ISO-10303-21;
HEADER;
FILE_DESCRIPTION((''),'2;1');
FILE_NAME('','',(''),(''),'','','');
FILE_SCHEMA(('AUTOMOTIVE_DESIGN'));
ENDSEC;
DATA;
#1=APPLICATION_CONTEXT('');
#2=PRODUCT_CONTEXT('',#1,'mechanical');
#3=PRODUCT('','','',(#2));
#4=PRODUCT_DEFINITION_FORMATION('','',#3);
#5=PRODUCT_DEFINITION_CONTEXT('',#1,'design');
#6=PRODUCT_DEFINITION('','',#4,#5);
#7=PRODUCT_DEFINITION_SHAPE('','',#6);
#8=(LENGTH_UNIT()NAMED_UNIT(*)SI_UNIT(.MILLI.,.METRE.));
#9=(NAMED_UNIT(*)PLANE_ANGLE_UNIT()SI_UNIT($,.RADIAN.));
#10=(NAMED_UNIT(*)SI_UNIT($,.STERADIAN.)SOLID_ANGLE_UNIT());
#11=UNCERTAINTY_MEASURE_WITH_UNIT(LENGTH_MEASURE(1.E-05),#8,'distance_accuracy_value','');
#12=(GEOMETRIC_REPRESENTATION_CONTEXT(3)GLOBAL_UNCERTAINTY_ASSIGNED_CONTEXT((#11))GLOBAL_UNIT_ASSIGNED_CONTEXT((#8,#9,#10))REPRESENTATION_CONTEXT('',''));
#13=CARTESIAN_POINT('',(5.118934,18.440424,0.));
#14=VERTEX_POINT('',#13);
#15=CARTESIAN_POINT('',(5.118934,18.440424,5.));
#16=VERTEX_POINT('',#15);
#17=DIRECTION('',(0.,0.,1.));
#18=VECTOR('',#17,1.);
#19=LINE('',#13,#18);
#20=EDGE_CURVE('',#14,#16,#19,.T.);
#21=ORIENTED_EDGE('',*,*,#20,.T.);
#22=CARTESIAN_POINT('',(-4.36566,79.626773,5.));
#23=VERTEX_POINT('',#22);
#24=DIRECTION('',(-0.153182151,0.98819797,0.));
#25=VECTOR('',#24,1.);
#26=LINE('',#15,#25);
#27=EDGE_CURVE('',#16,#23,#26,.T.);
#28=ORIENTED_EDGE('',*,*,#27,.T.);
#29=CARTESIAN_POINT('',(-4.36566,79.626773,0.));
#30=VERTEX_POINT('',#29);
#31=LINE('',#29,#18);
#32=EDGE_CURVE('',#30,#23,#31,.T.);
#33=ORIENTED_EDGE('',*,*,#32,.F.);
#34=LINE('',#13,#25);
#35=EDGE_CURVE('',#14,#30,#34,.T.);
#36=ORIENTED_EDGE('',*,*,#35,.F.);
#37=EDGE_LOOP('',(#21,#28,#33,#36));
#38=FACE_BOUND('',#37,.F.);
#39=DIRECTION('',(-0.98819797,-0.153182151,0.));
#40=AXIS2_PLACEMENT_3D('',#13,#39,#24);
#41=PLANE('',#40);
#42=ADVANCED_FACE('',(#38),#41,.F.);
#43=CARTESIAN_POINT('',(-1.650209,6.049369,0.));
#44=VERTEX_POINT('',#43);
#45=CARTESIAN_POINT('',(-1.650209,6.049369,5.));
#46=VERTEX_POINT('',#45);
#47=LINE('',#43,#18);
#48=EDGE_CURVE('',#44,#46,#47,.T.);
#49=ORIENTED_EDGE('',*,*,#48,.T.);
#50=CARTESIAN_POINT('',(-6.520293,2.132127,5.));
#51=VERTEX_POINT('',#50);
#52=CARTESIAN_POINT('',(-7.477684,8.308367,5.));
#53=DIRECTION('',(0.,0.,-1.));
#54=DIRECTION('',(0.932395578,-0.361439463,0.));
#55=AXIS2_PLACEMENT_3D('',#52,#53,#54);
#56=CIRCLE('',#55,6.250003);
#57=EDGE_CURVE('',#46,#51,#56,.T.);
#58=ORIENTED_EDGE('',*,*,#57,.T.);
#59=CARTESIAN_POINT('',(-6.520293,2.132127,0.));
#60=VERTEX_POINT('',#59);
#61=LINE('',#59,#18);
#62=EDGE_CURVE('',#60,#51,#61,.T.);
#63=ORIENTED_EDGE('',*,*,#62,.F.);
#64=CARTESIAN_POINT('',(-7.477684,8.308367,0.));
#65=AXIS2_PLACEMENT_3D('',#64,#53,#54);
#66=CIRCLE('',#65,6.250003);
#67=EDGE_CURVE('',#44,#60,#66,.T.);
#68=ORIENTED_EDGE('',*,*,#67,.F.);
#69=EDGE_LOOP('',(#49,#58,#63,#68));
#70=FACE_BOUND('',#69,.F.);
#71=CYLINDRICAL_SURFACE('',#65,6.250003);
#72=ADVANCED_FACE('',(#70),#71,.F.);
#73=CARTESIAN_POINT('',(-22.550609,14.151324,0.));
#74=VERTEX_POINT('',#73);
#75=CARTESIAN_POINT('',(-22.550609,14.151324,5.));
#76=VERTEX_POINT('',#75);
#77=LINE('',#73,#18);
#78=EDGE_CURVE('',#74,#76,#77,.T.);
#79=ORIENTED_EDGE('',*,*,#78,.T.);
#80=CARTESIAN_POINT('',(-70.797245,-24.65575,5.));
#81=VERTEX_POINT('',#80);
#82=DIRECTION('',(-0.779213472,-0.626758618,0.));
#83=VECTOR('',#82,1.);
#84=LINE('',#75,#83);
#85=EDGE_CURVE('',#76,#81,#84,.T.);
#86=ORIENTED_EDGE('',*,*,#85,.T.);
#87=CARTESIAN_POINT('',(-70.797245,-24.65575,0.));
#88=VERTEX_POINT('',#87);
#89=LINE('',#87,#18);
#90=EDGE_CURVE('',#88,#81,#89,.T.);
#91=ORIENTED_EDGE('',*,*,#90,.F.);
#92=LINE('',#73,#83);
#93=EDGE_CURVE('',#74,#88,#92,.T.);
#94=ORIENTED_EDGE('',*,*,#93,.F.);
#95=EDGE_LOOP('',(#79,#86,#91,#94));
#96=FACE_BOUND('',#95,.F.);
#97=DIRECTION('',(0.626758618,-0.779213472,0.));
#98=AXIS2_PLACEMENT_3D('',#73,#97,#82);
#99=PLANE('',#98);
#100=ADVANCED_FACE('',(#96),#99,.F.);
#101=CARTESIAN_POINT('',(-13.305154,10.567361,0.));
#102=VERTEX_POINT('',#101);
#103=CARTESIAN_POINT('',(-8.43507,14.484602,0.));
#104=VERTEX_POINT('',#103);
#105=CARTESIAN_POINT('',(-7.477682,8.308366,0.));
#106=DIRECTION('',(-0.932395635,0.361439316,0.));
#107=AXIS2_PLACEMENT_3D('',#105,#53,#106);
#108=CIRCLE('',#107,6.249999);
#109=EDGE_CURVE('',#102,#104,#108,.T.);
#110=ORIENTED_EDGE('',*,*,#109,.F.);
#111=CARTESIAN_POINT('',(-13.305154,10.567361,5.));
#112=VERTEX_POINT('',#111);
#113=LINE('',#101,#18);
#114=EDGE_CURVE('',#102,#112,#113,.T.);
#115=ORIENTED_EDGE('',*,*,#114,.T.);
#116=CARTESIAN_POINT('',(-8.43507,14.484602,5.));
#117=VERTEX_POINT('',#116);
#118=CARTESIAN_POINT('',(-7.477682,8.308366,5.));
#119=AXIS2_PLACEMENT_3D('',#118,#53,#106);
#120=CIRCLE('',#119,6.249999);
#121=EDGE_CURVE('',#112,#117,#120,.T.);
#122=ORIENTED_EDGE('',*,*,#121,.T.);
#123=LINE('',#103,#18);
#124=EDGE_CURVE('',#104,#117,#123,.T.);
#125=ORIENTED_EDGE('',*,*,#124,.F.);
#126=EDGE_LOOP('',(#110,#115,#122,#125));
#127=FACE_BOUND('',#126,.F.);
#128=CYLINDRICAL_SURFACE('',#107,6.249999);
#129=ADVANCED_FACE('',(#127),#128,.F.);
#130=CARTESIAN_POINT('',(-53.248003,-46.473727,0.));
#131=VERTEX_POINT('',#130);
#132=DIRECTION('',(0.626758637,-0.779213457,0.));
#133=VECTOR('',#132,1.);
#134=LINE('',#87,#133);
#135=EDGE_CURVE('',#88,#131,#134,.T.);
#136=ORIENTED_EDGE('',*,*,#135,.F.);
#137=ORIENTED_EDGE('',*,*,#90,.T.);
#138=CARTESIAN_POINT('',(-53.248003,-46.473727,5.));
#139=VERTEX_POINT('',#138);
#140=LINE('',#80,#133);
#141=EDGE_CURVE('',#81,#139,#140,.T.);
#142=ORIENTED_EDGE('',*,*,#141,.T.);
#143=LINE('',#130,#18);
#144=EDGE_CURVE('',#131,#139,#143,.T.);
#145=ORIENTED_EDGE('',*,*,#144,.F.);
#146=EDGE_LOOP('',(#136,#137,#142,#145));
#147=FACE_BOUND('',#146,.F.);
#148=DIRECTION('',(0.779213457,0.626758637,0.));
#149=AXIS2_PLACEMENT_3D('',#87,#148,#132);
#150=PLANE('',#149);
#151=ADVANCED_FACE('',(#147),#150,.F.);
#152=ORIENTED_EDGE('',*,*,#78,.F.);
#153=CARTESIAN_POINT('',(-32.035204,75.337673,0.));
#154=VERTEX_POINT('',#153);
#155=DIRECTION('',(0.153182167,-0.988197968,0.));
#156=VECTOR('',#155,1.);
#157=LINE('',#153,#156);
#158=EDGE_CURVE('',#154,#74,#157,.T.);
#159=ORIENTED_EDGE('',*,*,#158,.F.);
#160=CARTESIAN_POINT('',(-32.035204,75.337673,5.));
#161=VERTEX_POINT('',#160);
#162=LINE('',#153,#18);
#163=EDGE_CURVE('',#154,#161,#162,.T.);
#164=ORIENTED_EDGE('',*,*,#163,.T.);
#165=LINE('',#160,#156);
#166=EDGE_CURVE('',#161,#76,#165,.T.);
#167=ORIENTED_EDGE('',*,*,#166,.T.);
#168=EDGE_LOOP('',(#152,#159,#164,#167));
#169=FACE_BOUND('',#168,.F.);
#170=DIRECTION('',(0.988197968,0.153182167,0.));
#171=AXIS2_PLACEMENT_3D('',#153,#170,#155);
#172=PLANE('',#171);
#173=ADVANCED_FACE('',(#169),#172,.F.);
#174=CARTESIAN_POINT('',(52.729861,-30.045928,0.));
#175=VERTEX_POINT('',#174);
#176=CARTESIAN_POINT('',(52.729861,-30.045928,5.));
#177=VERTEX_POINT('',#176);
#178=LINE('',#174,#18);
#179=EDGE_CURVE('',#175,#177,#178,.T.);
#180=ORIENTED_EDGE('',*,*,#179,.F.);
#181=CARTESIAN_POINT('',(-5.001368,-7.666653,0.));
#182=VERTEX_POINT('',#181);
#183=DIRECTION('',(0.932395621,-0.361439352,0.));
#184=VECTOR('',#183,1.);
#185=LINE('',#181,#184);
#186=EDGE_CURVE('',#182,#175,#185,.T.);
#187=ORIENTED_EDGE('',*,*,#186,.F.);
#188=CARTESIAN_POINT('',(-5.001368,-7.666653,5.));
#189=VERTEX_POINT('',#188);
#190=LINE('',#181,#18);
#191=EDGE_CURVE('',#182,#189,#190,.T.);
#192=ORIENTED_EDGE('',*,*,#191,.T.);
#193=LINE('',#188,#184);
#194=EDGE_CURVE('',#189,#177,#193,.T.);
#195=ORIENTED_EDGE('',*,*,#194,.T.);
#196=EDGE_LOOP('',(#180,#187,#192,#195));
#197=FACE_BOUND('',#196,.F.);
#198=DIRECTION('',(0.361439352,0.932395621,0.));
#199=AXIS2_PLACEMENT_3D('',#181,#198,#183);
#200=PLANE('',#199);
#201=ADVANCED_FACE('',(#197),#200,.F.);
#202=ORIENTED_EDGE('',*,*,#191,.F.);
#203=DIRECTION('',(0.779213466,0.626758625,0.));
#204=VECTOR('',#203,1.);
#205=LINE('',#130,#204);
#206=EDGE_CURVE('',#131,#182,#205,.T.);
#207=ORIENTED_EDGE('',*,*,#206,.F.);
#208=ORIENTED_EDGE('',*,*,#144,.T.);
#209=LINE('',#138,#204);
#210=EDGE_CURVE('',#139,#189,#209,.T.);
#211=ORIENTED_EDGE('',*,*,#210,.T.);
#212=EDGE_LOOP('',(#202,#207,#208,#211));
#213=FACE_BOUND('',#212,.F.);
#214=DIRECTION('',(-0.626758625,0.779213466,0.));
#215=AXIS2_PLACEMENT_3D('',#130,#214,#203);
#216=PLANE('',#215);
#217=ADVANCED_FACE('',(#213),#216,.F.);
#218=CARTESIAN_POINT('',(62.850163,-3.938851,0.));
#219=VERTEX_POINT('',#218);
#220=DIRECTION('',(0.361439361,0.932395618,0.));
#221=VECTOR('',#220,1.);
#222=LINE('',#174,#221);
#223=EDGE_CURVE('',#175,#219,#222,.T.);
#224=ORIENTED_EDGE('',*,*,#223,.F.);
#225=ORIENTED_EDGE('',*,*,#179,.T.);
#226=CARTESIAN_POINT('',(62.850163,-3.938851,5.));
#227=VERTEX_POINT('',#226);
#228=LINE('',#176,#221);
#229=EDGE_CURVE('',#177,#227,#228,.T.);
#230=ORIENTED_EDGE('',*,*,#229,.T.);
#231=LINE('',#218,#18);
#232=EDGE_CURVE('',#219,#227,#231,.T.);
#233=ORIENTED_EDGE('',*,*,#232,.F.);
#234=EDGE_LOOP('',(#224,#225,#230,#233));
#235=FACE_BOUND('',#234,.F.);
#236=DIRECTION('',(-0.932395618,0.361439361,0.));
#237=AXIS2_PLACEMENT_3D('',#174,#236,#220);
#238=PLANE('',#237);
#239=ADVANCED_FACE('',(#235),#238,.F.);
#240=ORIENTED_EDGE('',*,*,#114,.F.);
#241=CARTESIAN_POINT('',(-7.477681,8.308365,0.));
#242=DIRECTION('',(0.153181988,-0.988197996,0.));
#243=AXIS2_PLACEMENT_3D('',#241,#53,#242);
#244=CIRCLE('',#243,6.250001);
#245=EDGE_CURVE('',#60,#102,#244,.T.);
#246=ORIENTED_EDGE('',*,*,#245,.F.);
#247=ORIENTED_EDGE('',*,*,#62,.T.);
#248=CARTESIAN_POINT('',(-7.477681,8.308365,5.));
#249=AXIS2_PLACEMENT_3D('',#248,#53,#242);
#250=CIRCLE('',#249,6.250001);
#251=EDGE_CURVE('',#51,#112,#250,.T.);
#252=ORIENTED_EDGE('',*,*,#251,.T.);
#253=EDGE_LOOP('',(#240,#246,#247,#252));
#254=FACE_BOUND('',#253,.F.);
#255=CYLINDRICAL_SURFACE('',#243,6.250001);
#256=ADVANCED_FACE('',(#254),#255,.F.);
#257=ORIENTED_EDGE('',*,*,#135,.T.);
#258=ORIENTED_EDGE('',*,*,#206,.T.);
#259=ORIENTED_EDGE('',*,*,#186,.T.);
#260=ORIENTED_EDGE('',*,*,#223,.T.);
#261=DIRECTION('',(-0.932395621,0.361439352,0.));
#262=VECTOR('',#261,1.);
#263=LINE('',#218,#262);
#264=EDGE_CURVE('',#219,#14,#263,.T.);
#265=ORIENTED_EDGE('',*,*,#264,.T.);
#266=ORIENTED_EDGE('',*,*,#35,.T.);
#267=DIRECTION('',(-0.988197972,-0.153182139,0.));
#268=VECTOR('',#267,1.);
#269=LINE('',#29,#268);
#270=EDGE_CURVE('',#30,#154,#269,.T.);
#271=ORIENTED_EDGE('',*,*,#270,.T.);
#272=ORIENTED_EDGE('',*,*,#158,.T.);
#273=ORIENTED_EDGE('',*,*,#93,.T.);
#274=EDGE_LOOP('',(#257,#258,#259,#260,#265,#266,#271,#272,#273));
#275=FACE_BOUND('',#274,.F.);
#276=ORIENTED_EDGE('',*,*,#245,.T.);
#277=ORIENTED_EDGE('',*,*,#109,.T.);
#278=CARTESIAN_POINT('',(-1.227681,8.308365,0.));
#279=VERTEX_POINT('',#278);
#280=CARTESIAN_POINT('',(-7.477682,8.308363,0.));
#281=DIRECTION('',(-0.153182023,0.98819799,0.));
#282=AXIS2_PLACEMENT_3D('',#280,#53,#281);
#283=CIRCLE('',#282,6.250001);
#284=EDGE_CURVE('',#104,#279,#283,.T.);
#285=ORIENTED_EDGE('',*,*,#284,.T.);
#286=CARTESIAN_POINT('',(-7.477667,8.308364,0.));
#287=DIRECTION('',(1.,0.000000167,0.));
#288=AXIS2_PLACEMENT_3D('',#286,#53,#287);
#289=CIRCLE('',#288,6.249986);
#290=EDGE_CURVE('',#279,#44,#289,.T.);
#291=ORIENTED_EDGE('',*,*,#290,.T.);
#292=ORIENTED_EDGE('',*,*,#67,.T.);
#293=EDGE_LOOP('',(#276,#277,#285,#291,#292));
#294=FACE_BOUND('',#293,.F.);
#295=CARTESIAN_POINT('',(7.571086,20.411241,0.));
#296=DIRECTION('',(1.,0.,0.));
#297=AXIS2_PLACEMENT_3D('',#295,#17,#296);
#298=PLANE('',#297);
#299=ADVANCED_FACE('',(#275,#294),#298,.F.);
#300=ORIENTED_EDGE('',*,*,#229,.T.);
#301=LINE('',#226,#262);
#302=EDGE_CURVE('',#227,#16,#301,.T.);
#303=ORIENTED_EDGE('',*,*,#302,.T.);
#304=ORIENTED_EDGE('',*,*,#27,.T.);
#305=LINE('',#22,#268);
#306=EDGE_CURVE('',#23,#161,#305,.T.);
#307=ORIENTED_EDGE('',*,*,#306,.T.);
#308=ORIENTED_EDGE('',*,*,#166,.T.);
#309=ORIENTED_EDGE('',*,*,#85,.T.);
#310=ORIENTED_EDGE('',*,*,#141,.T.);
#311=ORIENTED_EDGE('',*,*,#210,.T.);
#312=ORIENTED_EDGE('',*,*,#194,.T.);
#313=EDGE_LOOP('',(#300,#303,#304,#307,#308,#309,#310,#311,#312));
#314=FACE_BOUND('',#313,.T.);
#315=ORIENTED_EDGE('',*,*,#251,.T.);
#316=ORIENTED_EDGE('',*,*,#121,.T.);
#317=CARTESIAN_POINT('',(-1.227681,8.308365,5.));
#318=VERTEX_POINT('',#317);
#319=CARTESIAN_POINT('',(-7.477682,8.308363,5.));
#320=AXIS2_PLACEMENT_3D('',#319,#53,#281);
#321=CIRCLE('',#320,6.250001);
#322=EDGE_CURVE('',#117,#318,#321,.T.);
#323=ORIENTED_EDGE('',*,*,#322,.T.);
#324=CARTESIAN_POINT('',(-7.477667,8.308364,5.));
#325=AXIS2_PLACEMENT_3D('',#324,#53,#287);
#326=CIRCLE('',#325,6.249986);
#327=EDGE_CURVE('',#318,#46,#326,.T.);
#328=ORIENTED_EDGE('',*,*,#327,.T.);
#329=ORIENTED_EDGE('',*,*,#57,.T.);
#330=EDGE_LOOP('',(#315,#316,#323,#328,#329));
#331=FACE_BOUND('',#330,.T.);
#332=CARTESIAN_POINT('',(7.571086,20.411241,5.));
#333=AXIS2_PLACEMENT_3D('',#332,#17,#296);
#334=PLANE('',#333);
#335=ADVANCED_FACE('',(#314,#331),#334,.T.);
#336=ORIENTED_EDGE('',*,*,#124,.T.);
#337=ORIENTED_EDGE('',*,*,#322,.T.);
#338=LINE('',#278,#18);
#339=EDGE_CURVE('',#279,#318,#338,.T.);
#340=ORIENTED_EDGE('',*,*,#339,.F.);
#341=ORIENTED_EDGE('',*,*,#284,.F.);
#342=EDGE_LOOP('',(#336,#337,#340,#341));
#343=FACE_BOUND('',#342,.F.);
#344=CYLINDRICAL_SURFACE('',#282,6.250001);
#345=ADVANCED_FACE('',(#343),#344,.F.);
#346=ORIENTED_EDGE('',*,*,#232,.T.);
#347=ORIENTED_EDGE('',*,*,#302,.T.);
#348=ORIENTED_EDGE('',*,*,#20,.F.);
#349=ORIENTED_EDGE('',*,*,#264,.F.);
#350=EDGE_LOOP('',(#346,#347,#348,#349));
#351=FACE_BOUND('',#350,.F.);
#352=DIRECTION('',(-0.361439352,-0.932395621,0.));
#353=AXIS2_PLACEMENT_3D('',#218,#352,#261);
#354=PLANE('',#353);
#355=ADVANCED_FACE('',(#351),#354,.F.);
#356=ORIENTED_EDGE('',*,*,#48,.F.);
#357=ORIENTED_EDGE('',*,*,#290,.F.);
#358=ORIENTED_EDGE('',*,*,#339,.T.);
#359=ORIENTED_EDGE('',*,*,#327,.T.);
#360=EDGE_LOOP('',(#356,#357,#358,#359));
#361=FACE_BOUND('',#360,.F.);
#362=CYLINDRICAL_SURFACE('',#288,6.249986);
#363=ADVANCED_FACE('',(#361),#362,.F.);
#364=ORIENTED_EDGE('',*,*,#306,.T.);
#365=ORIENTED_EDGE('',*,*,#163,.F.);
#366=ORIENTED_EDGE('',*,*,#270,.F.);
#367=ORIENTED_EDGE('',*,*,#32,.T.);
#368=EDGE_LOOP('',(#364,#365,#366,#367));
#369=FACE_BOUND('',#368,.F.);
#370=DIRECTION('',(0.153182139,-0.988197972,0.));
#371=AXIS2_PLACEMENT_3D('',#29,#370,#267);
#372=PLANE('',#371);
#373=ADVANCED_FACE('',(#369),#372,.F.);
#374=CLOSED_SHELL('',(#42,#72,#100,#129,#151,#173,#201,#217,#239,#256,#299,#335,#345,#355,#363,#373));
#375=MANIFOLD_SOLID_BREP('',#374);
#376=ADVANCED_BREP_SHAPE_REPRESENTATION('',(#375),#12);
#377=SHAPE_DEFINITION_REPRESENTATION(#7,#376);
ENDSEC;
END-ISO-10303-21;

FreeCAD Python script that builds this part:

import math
import FreeCAD as App
import Part
import Sketcher

doc = App.newDocument("Part")
body = doc.addObject("PartDesign::Body", "Body")

# Sketch on XY plane
sketch1 = body.newObject("Sketcher::SketchObject", "Sketch")
sketch1.AttachmentSupport = (doc.getObject("XY_Plane"), [""])
sketch1.MapMode = "FlatFace"
sketch1.addGeometry([
    Part.LineSegment(App.Vector(-4.36566, 79.626773, 0), App.Vector(-32.035204, 75.337673, 0)),  # 0
    Part.LineSegment(App.Vector(-32.035204, 75.337673, 0), App.Vector(-22.550609, 14.151324, 0)),  # 1
    Part.LineSegment(App.Vector(-22.550609, 14.151324, 0), App.Vector(-70.797245, -24.65575, 0)),  # 2
    Part.LineSegment(App.Vector(-70.797245, -24.65575, 0), App.Vector(-53.248003, -46.473727, 0)),  # 3
    Part.LineSegment(App.Vector(-53.248003, -46.473727, 0), App.Vector(-5.001368, -7.666653, 0)),  # 4
    Part.LineSegment(App.Vector(-5.001368, -7.666653, 0), App.Vector(52.729861, -30.045928, 0)),  # 5
    Part.LineSegment(App.Vector(52.729861, -30.045928, 0), App.Vector(62.850163, -3.938851, 0)),  # 6
    Part.LineSegment(App.Vector(62.850163, -3.938851, 0), App.Vector(5.118934, 18.440424, 0)),  # 7
    Part.LineSegment(App.Vector(5.118934, 18.440424, 0), App.Vector(-4.36566, 79.626773, 0)),  # 8
    Part.ArcOfCircle(Part.Circle(App.Vector(-7.477682, 8.308366, 0), App.Vector(0, 0, 1), 6.249999), math.radians(98.811377), math.radians(158.811384)),  # 9
    Part.ArcOfCircle(Part.Circle(App.Vector(-7.477682, 8.308363, 0), App.Vector(0, 0, 1), 6.250001), math.radians(0.000015), math.radians(98.811375)),  # 10
    Part.ArcOfCircle(Part.Circle(App.Vector(-7.477667, 8.308364, 0), App.Vector(0, 0, 1), 6.249986), math.radians(-21.188658), math.radians(0.00001)),  # 11
    Part.ArcOfCircle(Part.Circle(App.Vector(-7.477684, 8.308367, 0), App.Vector(0, 0, 1), 6.250003), math.radians(-81.1886), math.radians(-21.188625)),  # 12
    Part.ArcOfCircle(Part.Circle(App.Vector(-7.477681, 8.308365, 0), App.Vector(0, 0, 1), 6.250001), math.radians(158.811386), math.radians(278.811373)),  # 13
], False)
sketch1.addConstraint([
    Sketcher.Constraint("Coincident", 0, 2, 1, 1),
    Sketcher.Constraint("Coincident", 1, 2, 2, 1),
    Sketcher.Constraint("Coincident", 2, 2, 3, 1),
    Sketcher.Constraint("Coincident", 3, 2, 4, 1),
    Sketcher.Constraint("Coincident", 4, 2, 5, 1),
    Sketcher.Constraint("Coincident", 5, 2, 6, 1),
    Sketcher.Constraint("Coincident", 6, 2, 7, 1),
    Sketcher.Constraint("Coincident", 7, 2, 8, 1),
    Sketcher.Constraint("Coincident", 8, 2, 0, 1),
    Sketcher.Constraint("Coincident", 9, 1, 10, 2),
    Sketcher.Constraint("Coincident", 10, 1, 11, 2),
    Sketcher.Constraint("Coincident", 11, 1, 12, 2),
    Sketcher.Constraint("Coincident", 12, 1, 13, 2),
    Sketcher.Constraint("Coincident", 13, 1, 9, 2),
    Sketcher.Constraint("Coincident", 10, 3, 9, 3),
    Sketcher.Constraint("Coincident", 12, 3, 9, 3),
    Sketcher.Constraint("Coincident", 13, 3, 9, 3),
    Sketcher.Constraint("Radius", 9, 6.249999),
    Sketcher.Constraint("Distance", 0, 28.000001),
    Sketcher.Constraint("Distance", 3, 28.0),
    Sketcher.Constraint("Distance", 6, 28.0),
    Sketcher.Constraint("Radius", 11, 6.249986),
    Sketcher.Constraint("DistanceY", -1, 1, 9, 1, 14.484602),
    Sketcher.Constraint("DistanceX", 11, 3, 4, 2, 2.476299),
    Sketcher.Constraint("DistanceX", 11, 3, 7, 2, 12.596601),
    Sketcher.Constraint("DistanceY", 0, 2, 8, 2, 4.2891),
    Sketcher.Constraint("DistanceX", 13, 3, -1, 1, 7.477681),
    Sketcher.Constraint("DistanceX", 1, 2, -1, 1, 22.550609),
    Sketcher.Constraint("DistanceY", 2, 2, -1, 1, 24.65575),
    Sketcher.Constraint("DistanceX", -1, 1, 5, 2, 52.729861),
    Sketcher.Constraint("DistanceY", 5, 2, -1, 1, 30.045928),
    Sketcher.Constraint("DistanceY", 6, 2, -1, 1, 3.938851),
    Sketcher.Constraint("DistanceX", 8, 2, -1, 1, 4.36566),
    Sketcher.Constraint("DistanceX", 9, 1, -1, 1, 8.43507),
    Sketcher.Constraint("DistanceX", 11, 1, -1, 1, 1.650209),
    Sketcher.Constraint("DistanceY", -1, 1, 13, 1, 10.567361),
    Sketcher.Constraint("DistanceY", 10, 3, 0, 2, 67.02931),
    Sketcher.Constraint("DistanceY", 9, 3, 1, 2, 5.842958),
    Sketcher.Constraint("DistanceX", 2, 2, 12, 3, 63.319561),
    Sketcher.Constraint("DistanceY", 3, 2, 1, 2, 60.625051),
    Sketcher.Constraint("DistanceY", 4, 2, 13, 3, 15.975018),
    Sketcher.Constraint("DistanceY", 11, 3, 7, 2, 10.13206),
    Sketcher.Constraint("DistanceX", 10, 3, 12, 1, 0.957389),
    Sketcher.Constraint("DistanceY", -1, 1, 10, 1, 8.308365),
])
pad1 = body.newObject("PartDesign::Pad", "Pad")
pad1.Profile = sketch1
pad1.Length = 5

doc.recompute()
